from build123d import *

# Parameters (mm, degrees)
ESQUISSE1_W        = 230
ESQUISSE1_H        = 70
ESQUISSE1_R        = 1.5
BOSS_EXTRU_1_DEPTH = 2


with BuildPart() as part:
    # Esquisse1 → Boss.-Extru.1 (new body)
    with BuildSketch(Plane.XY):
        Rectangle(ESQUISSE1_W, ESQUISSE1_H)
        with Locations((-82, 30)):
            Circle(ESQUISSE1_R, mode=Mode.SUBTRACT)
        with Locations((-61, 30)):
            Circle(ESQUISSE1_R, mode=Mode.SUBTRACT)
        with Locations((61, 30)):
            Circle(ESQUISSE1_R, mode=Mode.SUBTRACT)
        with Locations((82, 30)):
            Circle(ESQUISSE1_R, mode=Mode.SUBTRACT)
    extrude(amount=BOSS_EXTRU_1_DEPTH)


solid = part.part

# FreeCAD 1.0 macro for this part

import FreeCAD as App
import Part
import Sketcher
from FreeCAD import Vector

doc = App.newDocument("Part")
params = doc.addObject("Spreadsheet::Sheet", "Params")
for row, (alias, value) in enumerate([
    ("sketch1_diameter", "3 mm"),
    ("sketch1_width", "230 mm"),
    ("sketch1_height", "70 mm"),
    ("pad1_length", "2 mm"),
], start=1):
    params.set(f"A{row}", alias)
    params.set(f"B{row}", "=" + value)
    params.setAlias(f"B{row}", alias)

body = doc.addObject("PartDesign::Body", "Body")

# Sketch on XY plane
sketch1 = body.newObject("Sketcher::SketchObject", "Sketch")
sketch1.AttachmentSupport = (doc.getObject("XY_Plane"), [""])
sketch1.MapMode = "FlatFace"
sketch1.addGeometry(Part.LineSegment(Vector(-115, 35, 0), Vector(-115, -35, 0)), False)
sketch1.addGeometry(Part.LineSegment(Vector(-115, -35, 0), Vector(115, -35, 0)), False)
sketch1.addGeometry(Part.LineSegment(Vector(115, -35, 0), Vector(115, 35, 0)), False)
sketch1.addGeometry(Part.LineSegment(Vector(115, 35, 0), Vector(-115, 35, 0)), False)
sketch1.addGeometry(Part.Circle(Vector(-82, 30, 0), Vector(0, 0, 1), 1.5), False)
sketch1.addGeometry(Part.Circle(Vector(-61, 30, 0), Vector(0, 0, 1), 1.5), False)
sketch1.addGeometry(Part.Circle(Vector(61, 30, 0), Vector(0, 0, 1), 1.5), False)
sketch1.addGeometry(Part.Circle(Vector(82, 30, 0), Vector(0, 0, 1), 1.5), False)
sketch1.addConstraint(Sketcher.Constraint("Coincident", 0, 2, 1, 1))
sketch1.addConstraint(Sketcher.Constraint("Coincident", 1, 2, 2, 1))
sketch1.addConstraint(Sketcher.Constraint("Coincident", 2, 2, 3, 1))
sketch1.addConstraint(Sketcher.Constraint("Coincident", 3, 2, 0, 1))
sketch1.addConstraint(Sketcher.Constraint("Vertical", 0))
sketch1.addConstraint(Sketcher.Constraint("Horizontal", 1))
sketch1.addConstraint(Sketcher.Constraint("Vertical", 2))
sketch1.addConstraint(Sketcher.Constraint("Horizontal", 3))
sketch1.addConstraint(Sketcher.Constraint("Equal", 4, 5))
sketch1.addConstraint(Sketcher.Constraint("Equal", 5, 6))
sketch1.addConstraint(Sketcher.Constraint("Equal", 6, 7))
sketch1.addConstraint(Sketcher.Constraint("Symmetric", 0, 2, 2, 2, -1, 1))
sketch1.addConstraint(Sketcher.Constraint("Symmetric", 5, 3, 6, 3, -2))
sketch1.addConstraint(Sketcher.Constraint("Symmetric", 4, 3, 7, 3, -2))
sketch1.addConstraint(Sketcher.Constraint("Horizontal", 4, 3, 5, 3))
sketch1.addConstraint(Sketcher.Constraint("Diameter", 4, 3.0))
sketch1.addConstraint(Sketcher.Constraint("DistanceX", 1, 1, 1, 2, 230.0))
sketch1.addConstraint(Sketcher.Constraint("DistanceY", 0, 2, 0, 1, 70.0))
sketch1.addConstraint(Sketcher.Constraint("DistanceX", 4, 3, -1, 1, 82.0))
sketch1.addConstraint(Sketcher.Constraint("DistanceY", -1, 1, 4, 3, 30.0))
sketch1.addConstraint(Sketcher.Constraint("DistanceX", 5, 3, -1, 1, 61.0))
sketch1.setExpression("Constraints[15]", "Params.sketch1_diameter")
sketch1.setExpression("Constraints[16]", "Params.sketch1_width")
sketch1.setExpression("Constraints[17]", "Params.sketch1_height")
pad1 = body.newObject("PartDesign::Pad", "Pad")
pad1.Profile = sketch1
pad1.setExpression("Length", "Params.pad1_length")

doc.recompute()
